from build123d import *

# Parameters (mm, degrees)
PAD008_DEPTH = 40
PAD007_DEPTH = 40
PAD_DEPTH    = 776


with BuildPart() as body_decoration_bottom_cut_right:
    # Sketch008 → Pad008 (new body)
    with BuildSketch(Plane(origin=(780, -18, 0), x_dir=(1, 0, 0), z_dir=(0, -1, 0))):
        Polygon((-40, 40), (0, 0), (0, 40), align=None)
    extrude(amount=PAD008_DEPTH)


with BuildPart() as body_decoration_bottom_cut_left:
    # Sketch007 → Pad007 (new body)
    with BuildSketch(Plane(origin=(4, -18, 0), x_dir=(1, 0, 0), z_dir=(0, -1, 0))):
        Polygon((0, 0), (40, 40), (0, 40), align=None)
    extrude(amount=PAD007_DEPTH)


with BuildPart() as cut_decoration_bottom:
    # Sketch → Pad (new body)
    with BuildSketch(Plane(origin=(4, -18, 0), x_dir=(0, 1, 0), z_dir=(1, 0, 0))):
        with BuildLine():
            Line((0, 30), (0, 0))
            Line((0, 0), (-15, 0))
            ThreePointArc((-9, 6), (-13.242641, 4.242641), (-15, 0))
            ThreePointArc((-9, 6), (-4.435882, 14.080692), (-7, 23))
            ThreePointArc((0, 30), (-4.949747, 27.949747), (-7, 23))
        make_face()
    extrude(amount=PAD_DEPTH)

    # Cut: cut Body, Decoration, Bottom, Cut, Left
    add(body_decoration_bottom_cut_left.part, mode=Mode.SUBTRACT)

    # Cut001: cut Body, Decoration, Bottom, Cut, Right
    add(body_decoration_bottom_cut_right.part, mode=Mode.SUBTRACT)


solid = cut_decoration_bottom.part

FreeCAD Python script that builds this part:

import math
import FreeCAD as App
import Part
import Sketcher
from FreeCAD import Vector
Q = App.Units.Quantity


def add_polygon(sketch, points):
    """Adds a closed chain of lines whose ends are joined by coincident constraints."""
    first, n = sketch.GeometryCount, len(points)
    for a, b in zip(points, points[1:] + points[:1]):
        sketch.addGeometry(Part.LineSegment(App.Vector(*a, 0), App.Vector(*b, 0)), False)
    for i in range(n):
        sketch.addConstraint(Sketcher.Constraint("Coincident", first + i, 2, first + (i + 1) % n, 1))

doc = App.newDocument("Part")
body = doc.addObject("PartDesign::Body", "Body")

sketch1 = body.newObject("Sketcher::SketchObject", "Sketch")
sketch1.AttachmentSupport = (doc.getObject("XZ_Plane"), [""])
sketch1.MapMode = "FlatFace"
sketch1.AttachmentOffset = App.Placement(Vector(0, 0, 18), App.Rotation())
add_polygon(sketch1, [(740, 40), (780, 0), (780, 40)])
sketch1.addConstraint([
    Sketcher.Constraint("Vertical", 1),
    Sketcher.Constraint("Horizontal", 2),
    Sketcher.Constraint("PointOnObject", 0, 2, -1),
    Sketcher.Constraint("Equal", 2, 1),
    Sketcher.Constraint("DistanceX", 2, 2, 2, 1, Q("40 mm")),
    Sketcher.Constraint("DistanceX", -1, 1, 0, 2, Q("780 mm")),
])
pad1 = body.newObject("PartDesign::Pad", "Pad")
pad1.Profile = sketch1
pad1.Length = 40
body2 = doc.addObject("PartDesign::Body", "Body001")

sketch2 = body2.newObject("Sketcher::SketchObject", "Sketch001")
sketch2.AttachmentSupport = (doc.getObject("XZ_Plane001"), [""])
sketch2.MapMode = "FlatFace"
sketch2.AttachmentOffset = App.Placement(Vector(0, 0, 18), App.Rotation())
add_polygon(sketch2, [(4, 0), (44, 40), (4, 40)])
sketch2.addConstraint([
    Sketcher.Constraint("Horizontal", 1),
    Sketcher.Constraint("Vertical", 2),
    Sketcher.Constraint("PointOnObject", 2, 2, -1),
    Sketcher.Constraint("Equal", 1, 2),
    Sketcher.Constraint("DistanceX", 1, 2, 1, 1, Q("40 mm")),
    Sketcher.Constraint("DistanceX", -1, 1, 0, 2, Q("44 mm")),
])
pad2 = body2.newObject("PartDesign::Pad", "Pad001")
pad2.Profile = sketch2
pad2.Length = 40
body3 = doc.addObject("PartDesign::Body", "Body002")

sketch3 = body3.newObject("Sketcher::SketchObject", "Sketch002")
sketch3.AttachmentSupport = (doc.getObject("YZ_Plane002"), [""])
sketch3.MapMode = "FlatFace"
sketch3.AttachmentOffset = App.Placement(Vector(0, 0, 4), App.Rotation())
sketch3.addGeometry([
    Part.LineSegment(Vector(-18, 0, 0), Vector(-18, 30, 0)),
    Part.ArcOfCircle(Part.Circle(Vector(-18, 23, 0), Vector(0, 0, 1), 7), math.radians(90), math.radians(180)),
    Part.ArcOfCircle(Part.Circle(Vector(-34, 15, 0), Vector(0, 0, 1), 12), math.radians(-52), math.radians(39)),
    Part.ArcOfCircle(Part.Circle(Vector(-27, 0, 0), Vector(0, 0, 1), 6), math.radians(90), math.radians(180)),
    Part.LineSegment(Vector(-33, 0, 0), Vector(-18, 0, 0)),
], False)
sketch3.addConstraint([
    Sketcher.Constraint("Coincident", 0, 2, 1, 1),
    Sketcher.Constraint("Coincident", 1, 2, 2, 2),
    Sketcher.Constraint("Coincident", 2, 1, 3, 1),
    Sketcher.Constraint("Coincident", 3, 2, 4, 1),
    Sketcher.Constraint("Coincident", 4, 2, 0, 1),
    Sketcher.Constraint("Vertical", 0),
    Sketcher.Constraint("Horizontal", 4),
    Sketcher.Constraint("PointOnObject", 3, 3, -1),
    Sketcher.Constraint("PointOnObject", 3, 2, -1),
    Sketcher.Constraint("Vertical", 1, 3, 0, 2),
    Sketcher.Constraint("Vertical", 3, 3, 2, 1),
    Sketcher.Constraint("Radius", 1, Q("7.000002 mm")),
    Sketcher.Constraint("Radius", 2, Q("11.999999 mm")),
    Sketcher.Constraint("Radius", 3, Q("5.999999 mm")),
    Sketcher.Constraint("DistanceX", 4, 1, 4, 2, Q("15 mm")),
    Sketcher.Constraint("DistanceY", 0, 1, 0, 2, Q("30 mm")),
    Sketcher.Constraint("DistanceX", 1, 3, -1, 1, Q("17.999998 mm")),
    Sketcher.Constraint("DistanceY", -1, 1, 1, 2, Q("23 mm")),
])
pad3 = body3.newObject("PartDesign::Pad", "Pad002")
pad3.Profile = sketch3
pad3.Length = 776
doc.recompute()

boolean = body3.newObject("PartDesign::Boolean", "Boolean")
boolean.Type = "Cut"
boolean.addObjects([body2])
doc.recompute()

boolean2 = body3.newObject("PartDesign::Boolean", "Boolean001")
boolean2.Type = "Cut"
boolean2.addObjects([body])

doc.recompute()
